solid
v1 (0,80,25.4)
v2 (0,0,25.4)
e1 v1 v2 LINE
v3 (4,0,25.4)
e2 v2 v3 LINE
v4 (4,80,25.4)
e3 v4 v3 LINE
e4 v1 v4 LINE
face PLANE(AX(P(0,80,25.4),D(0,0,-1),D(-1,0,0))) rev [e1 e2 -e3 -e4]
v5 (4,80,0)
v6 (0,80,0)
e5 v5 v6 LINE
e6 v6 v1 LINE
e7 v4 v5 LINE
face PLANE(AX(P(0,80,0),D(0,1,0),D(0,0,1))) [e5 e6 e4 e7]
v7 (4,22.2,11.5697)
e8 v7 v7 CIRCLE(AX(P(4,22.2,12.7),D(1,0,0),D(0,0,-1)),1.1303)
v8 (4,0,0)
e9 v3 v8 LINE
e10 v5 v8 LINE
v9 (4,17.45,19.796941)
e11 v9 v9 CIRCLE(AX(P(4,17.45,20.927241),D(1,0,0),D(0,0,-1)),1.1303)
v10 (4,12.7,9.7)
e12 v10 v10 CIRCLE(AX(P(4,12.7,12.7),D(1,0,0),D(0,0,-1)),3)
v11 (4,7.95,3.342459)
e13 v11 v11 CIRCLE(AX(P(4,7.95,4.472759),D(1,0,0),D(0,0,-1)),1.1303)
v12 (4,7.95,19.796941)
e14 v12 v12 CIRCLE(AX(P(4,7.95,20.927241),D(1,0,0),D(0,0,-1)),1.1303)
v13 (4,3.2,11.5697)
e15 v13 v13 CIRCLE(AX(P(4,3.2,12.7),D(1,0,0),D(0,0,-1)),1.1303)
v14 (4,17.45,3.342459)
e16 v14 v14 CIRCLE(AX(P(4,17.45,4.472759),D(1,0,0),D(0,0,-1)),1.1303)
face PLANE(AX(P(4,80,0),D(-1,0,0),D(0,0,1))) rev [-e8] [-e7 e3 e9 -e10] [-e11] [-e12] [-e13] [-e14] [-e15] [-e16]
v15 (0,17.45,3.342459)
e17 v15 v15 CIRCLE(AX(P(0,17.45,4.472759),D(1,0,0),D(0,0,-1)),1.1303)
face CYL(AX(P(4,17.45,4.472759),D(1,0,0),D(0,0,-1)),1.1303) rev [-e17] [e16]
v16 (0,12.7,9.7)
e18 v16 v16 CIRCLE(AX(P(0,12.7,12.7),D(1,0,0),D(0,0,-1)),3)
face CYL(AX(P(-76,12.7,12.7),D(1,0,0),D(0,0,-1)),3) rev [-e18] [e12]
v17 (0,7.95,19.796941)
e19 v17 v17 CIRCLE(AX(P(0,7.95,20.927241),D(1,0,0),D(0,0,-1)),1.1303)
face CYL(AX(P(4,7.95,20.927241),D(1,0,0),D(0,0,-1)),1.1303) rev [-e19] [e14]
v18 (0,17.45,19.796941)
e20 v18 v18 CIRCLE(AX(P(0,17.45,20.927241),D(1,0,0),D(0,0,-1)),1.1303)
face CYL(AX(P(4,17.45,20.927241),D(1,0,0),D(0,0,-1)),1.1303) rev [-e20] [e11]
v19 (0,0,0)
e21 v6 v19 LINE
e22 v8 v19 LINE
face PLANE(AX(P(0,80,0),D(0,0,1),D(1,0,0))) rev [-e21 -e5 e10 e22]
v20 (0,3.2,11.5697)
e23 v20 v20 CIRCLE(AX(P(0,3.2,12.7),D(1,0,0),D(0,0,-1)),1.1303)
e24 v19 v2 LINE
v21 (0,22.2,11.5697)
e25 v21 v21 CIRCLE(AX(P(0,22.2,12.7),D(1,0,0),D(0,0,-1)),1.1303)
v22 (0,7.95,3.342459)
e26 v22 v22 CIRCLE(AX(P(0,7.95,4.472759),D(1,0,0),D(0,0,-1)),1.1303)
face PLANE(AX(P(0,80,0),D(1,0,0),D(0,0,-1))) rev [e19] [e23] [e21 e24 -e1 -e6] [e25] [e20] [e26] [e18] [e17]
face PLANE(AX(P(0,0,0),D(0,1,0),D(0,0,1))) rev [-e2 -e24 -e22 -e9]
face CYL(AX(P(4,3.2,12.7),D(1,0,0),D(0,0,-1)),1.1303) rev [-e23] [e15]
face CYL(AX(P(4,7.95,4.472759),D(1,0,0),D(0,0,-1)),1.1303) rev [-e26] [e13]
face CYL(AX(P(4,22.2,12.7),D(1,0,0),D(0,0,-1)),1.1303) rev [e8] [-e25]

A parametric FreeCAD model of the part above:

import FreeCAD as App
import Part
import Sketcher
from FreeCAD import Vector
Q = App.Units.Quantity

doc = App.newDocument("Part")
body = doc.addObject("PartDesign::Body", "Body")

# Sketch on XZ plane
sketch1 = body.newObject("Sketcher::SketchObject", "Sketch")
sketch1.AttachmentSupport = (doc.getObject("XZ_Plane"), [""])
sketch1.MapMode = "FlatFace"
sketch1.addGeometry(Part.LineSegment(Vector(0, 0, 0), Vector(0, 25.4, 0)), False)
sketch1.addGeometry(Part.LineSegment(Vector(0, 25.4, 0), Vector(4, 25.4, 0)), False)
sketch1.addGeometry(Part.LineSegment(Vector(4, 25.4, 0), Vector(4, 0, 0)), False)
sketch1.addGeometry(Part.LineSegment(Vector(4, 0, 0), Vector(0, 0, 0)), False)
sketch1.addConstraint(Sketcher.Constraint("Coincident", 0, 2, 1, 1))
sketch1.addConstraint(Sketcher.Constraint("Coincident", 1, 2, 2, 1))
sketch1.addConstraint(Sketcher.Constraint("Coincident", 2, 2, 3, 1))
sketch1.addConstraint(Sketcher.Constraint("Coincident", 3, 2, 0, 1))
sketch1.addConstraint(Sketcher.Constraint("Vertical", 0))
sketch1.addConstraint(Sketcher.Constraint("Horizontal", 1))
sketch1.addConstraint(Sketcher.Constraint("Vertical", 2))
sketch1.addConstraint(Sketcher.Constraint("Horizontal", 3))
sketch1.addConstraint(Sketcher.Constraint("Coincident", 3, 2, -1, 1))
sketch1.addConstraint(Sketcher.Constraint("DistanceX", 1, 1, 1, 2, Q("4 mm")))
sketch1.addConstraint(Sketcher.Constraint("DistanceY", 0, 1, 0, 2, Q("25.4 mm")))
pad1 = body.newObject("PartDesign::Pad", "Pad")
pad1.Profile = sketch1
pad1.Length = 80
pad1.Reversed = True

# Sketch on YZ plane
sketch2 = body.newObject("Sketcher::SketchObject", "Sketch001")
sketch2.AttachmentSupport = (doc.getObject("YZ_Plane"), [""])
sketch2.MapMode = "FlatFace"
sketch2.AttachmentOffset = App.Placement(Vector(0, 0, 4), App.Rotation())
sketch2.addGeometry(Part.Circle(Vector(22.2, 12.7, 0), Vector(0, 0, 1), 1.1), False)
sketch2.addGeometry(Part.Circle(Vector(17.4, 4.5, 0), Vector(0, 0, 1), 1.1), False)
sketch2.addGeometry(Part.Circle(Vector(8, 4.5, 0), Vector(0, 0, 1), 1.1), False)
sketch2.addGeometry(Part.Circle(Vector(3.2, 12.7, 0), Vector(0, 0, 1), 1.1), False)
sketch2.addGeometry(Part.Circle(Vector(8, 20.9, 0), Vector(0, 0, 1), 1.1), False)
sketch2.addGeometry(Part.Circle(Vector(17.4, 20.9, 0), Vector(0, 0, 1), 1.1), False)
sketch2.addConstraint(Sketcher.Constraint("Equal", 0, 1))
sketch2.addConstraint(Sketcher.Constraint("Equal", 1, 2))
sketch2.addConstraint(Sketcher.Constraint("Equal", 2, 3))
sketch2.addConstraint(Sketcher.Constraint("Equal", 3, 4))
sketch2.addConstraint(Sketcher.Constraint("Equal", 4, 5))
sketch2.addConstraint(Sketcher.Constraint("Horizontal", 1, 3, 2, 3))
sketch2.addConstraint(Sketcher.Constraint("Horizontal", 0, 3, 3, 3))
sketch2.addConstraint(Sketcher.Constraint("Horizontal", 4, 3, 5, 3))
sketch2.addConstraint(Sketcher.Constraint("Vertical", 2, 3, 4, 3))
sketch2.addConstraint(Sketcher.Constraint("Vertical", 1, 3, 5, 3))
sketch2.addConstraint(Sketcher.Constraint("DistanceX", 3, 3, 0, 3, Q("19 mm")))
sketch2.addConstraint(Sketcher.Constraint("Diameter", 0, Q("2.2606 mm")))
sketch2.addConstraint(Sketcher.Constraint("DistanceX", -1, 1, 0, 3, Q("22.2 mm")))
sketch2.addConstraint(Sketcher.Constraint("DistanceY", -1, 1, 0, 3, Q("12.7 mm")))
sketch2.addConstraint(Sketcher.Constraint("DistanceX", 2, 3, 1, 3, Q("9.5 mm")))
sketch2.addConstraint(Sketcher.Constraint("DistanceX", -1, 1, 1, 3, Q("17.45 mm")))
sketch2.addConstraint(Sketcher.Constraint("DistanceY", -1, 1, 1, 3, Q("4.472759 mm")))
sketch2.addConstraint(Sketcher.Constraint("DistanceY", -1, 1, 4, 3, Q("20.927241 mm")))
doc.recompute()
hole = body.newObject("PartDesign::Hole", "Hole")
hole.Profile = sketch2
hole.ThreadType = "None"
hole.Diameter = 2.2606
hole.DepthType = "Dimension"
hole.Depth = 7.6
hole.DrillPoint = "Angled"
hole.DrillPointAngle = 118

# Sketch on YZ plane
sketch3 = body.newObject("Sketcher::SketchObject", "Sketch002")
sketch3.AttachmentSupport = (doc.getObject("YZ_Plane"), [""])
sketch3.MapMode = "FlatFace"
sketch3.AttachmentOffset = App.Placement(Vector(0, 0, 4), App.Rotation())
sketch3.addGeometry(Part.Circle(Vector(12.7, 12.7, 0), Vector(0, 0, 1), 3), False)
sketch3.addConstraint(Sketcher.Constraint("Diameter", 0, Q("6 mm")))
sketch3.addConstraint(Sketcher.Constraint("DistanceX", -1, 1, 0, 3, Q("12.7 mm")))
sketch3.addConstraint(Sketcher.Constraint("DistanceY", -1, 1, 0, 3, Q("12.7 mm")))
pocket1 = body.newObject("PartDesign::Pocket", "Pocket")
pocket1.Profile = sketch3
pocket1.Length = 80

doc.recompute()
